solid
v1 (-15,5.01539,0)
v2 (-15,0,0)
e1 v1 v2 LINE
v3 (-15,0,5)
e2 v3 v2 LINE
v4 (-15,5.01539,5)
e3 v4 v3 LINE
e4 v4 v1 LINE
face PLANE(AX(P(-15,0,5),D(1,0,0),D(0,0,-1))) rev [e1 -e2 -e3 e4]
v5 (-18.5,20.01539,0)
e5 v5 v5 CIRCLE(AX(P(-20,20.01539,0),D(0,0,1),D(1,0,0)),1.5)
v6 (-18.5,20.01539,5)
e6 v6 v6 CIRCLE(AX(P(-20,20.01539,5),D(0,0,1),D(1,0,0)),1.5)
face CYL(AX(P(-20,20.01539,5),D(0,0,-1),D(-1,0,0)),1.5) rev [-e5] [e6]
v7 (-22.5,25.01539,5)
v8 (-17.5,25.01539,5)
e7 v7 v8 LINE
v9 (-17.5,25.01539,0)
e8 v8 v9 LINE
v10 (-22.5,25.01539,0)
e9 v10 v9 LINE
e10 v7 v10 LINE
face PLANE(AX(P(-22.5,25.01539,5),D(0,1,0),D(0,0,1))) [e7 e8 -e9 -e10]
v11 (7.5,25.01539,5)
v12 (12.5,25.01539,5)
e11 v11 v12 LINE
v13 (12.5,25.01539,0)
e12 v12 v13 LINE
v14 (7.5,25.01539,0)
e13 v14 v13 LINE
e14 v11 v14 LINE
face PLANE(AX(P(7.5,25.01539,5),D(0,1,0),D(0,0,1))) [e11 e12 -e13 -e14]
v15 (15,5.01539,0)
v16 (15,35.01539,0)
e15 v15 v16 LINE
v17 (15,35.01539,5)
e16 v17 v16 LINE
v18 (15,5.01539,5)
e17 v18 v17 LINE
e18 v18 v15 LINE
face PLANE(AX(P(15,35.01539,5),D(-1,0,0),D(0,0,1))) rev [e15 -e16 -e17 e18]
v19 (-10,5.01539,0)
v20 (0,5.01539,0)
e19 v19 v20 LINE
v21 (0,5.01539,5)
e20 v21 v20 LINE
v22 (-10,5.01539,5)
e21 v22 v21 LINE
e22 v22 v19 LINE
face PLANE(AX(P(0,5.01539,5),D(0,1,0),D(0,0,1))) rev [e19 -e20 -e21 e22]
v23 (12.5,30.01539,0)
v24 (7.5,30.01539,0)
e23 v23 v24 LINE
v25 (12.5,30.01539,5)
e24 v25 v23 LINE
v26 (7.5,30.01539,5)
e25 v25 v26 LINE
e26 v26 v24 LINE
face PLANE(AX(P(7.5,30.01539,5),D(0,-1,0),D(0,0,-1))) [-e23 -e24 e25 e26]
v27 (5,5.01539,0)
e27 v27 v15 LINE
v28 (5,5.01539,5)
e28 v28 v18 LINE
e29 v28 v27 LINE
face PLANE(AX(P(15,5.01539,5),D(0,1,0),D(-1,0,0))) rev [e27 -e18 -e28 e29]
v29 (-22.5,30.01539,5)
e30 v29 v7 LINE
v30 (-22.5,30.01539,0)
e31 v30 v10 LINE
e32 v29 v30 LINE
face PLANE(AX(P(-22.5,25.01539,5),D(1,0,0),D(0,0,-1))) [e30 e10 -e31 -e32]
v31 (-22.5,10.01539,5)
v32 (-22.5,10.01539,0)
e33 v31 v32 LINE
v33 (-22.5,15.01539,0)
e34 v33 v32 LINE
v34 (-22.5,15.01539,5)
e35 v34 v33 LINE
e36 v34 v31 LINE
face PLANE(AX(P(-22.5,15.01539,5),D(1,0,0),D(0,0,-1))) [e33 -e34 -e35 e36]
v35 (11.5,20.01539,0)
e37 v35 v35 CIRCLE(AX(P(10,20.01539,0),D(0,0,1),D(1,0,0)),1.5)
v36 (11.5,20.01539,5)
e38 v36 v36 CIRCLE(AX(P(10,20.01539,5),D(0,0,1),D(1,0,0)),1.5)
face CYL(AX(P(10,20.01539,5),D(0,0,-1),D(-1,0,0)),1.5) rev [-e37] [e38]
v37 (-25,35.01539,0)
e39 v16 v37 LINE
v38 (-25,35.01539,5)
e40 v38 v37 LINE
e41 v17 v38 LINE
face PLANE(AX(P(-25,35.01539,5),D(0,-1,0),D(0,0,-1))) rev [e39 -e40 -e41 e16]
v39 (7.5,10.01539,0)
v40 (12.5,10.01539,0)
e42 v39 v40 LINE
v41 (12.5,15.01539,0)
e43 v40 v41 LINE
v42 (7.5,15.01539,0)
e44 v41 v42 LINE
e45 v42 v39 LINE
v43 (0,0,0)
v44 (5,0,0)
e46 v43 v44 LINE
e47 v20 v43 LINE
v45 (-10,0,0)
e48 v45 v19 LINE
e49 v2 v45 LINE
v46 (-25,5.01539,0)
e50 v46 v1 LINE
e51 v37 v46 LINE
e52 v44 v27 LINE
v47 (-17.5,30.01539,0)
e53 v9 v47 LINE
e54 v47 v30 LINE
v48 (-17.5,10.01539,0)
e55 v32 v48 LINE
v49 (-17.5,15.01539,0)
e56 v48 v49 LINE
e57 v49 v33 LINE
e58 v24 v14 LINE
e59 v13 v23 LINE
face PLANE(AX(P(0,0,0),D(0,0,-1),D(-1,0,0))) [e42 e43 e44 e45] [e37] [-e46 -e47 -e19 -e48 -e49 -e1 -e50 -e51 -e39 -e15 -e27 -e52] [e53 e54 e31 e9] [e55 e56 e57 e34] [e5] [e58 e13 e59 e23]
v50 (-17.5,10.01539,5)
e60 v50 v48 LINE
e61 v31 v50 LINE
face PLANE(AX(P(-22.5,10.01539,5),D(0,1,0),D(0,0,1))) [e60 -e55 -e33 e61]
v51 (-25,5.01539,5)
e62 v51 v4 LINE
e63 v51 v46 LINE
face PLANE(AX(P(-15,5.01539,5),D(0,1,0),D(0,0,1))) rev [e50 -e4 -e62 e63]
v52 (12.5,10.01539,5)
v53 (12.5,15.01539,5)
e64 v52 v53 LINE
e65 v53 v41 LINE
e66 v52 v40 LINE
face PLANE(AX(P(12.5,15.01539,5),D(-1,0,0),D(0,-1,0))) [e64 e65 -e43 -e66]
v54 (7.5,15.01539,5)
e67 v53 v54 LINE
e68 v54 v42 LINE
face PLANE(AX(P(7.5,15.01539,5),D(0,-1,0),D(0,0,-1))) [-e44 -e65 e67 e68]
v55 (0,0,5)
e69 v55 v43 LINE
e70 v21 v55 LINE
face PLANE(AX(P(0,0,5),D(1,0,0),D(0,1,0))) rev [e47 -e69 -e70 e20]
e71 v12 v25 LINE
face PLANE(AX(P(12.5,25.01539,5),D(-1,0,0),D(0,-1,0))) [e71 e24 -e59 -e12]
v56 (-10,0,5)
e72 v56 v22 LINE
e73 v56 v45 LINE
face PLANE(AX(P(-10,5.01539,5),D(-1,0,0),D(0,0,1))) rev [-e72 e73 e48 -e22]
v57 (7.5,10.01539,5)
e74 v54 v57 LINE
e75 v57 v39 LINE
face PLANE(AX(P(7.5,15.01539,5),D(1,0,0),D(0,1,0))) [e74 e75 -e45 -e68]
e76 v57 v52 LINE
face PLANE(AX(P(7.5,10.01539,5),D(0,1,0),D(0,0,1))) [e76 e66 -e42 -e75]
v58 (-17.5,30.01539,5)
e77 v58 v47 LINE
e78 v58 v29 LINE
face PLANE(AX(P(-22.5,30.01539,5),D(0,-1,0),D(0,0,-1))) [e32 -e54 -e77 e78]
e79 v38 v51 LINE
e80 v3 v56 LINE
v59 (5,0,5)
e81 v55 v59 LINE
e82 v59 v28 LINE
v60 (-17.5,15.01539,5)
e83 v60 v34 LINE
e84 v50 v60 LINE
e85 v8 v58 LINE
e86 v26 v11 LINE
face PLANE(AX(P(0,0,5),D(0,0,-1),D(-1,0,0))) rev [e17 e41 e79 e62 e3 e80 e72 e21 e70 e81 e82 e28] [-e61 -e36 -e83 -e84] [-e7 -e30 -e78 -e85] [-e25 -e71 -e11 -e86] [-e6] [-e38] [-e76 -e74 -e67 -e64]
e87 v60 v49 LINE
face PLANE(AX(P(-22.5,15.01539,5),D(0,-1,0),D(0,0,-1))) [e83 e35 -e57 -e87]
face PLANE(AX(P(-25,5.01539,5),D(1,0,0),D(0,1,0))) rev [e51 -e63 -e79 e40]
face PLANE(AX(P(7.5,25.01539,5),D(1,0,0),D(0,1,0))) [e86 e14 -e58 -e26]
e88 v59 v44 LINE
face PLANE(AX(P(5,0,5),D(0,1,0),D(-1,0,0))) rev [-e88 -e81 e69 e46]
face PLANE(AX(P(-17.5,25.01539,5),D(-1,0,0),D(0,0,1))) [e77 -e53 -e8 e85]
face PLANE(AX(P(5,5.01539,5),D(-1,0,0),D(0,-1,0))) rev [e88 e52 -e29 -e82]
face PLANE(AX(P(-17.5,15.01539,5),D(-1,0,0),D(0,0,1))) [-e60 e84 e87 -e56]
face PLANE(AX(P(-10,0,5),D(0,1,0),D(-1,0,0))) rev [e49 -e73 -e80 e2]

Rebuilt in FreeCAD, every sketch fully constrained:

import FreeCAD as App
import Part
import Sketcher

doc = App.newDocument("Part")
params = doc.addObject("Spreadsheet::Sheet", "Params")
for row, (alias, value) in enumerate([
    ("sketch1_diameter", "3 mm"),
    ("sketch1_width", "5 mm"),
    ("sketch1_width2", "10 mm"),
    ("sketch1_height", "30 mm"),
    ("pad1_length", "5 mm"),
], start=1):
    params.set(f"A{row}", alias)
    params.set(f"B{row}", "=" + value)
    params.setAlias(f"B{row}", alias)

body = doc.addObject("PartDesign::Body", "Body")

sketch1 = doc.addObject("Sketcher::SketchObject", "Sketch")
body.addObject(sketch1)
sketch1.AttachmentSupport = (doc.XY_Plane, [""])
sketch1.MapMode = "FlatFace"
sketch1.addGeometry(Part.LineSegment(App.Vector(0, 5.01539, 0), App.Vector(0, 0, 0)), False)
sketch1.addGeometry(Part.LineSegment(App.Vector(0, 0, 0), App.Vector(5, 0, 0)), False)
sketch1.addGeometry(Part.LineSegment(App.Vector(5, 0, 0), App.Vector(5, 5.01539, 0)), False)
sketch1.addGeometry(Part.LineSegment(App.Vector(5, 5.01539, 0), App.Vector(15, 5.01539, 0)), False)
sketch1.addGeometry(Part.LineSegment(App.Vector(15, 5.01539, 0), App.Vector(15, 35.01539, 0)), False)
sketch1.addGeometry(Part.LineSegment(App.Vector(15, 35.01539, 0), App.Vector(-25, 35.01539, 0)), False)
sketch1.addGeometry(Part.LineSegment(App.Vector(-25, 35.01539, 0), App.Vector(-25, 5.01539, 0)), False)
sketch1.addGeometry(Part.LineSegment(App.Vector(-25, 5.01539, 0), App.Vector(-15, 5.01539, 0)), False)
sketch1.addGeometry(Part.LineSegment(App.Vector(-15, 5.01539, 0), App.Vector(-15, 0, 0)), False)
sketch1.addGeometry(Part.LineSegment(App.Vector(-15, 0, 0), App.Vector(-10, 0, 0)), False)
sketch1.addGeometry(Part.LineSegment(App.Vector(-10, 0, 0), App.Vector(-10, 5.01539, 0)), False)
sketch1.addGeometry(Part.LineSegment(App.Vector(-10, 5.01539, 0), App.Vector(0, 5.01539, 0)), False)
sketch1.addGeometry(Part.LineSegment(App.Vector(7.5, 10.01539, 0), App.Vector(7.5, 15.01539, 0)), False)
sketch1.addGeometry(Part.LineSegment(App.Vector(7.5, 15.01539, 0), App.Vector(12.5, 15.01539, 0)), False)
sketch1.addGeometry(Part.LineSegment(App.Vector(12.5, 15.01539, 0), App.Vector(12.5, 10.01539, 0)), False)
sketch1.addGeometry(Part.LineSegment(App.Vector(12.5, 10.01539, 0), App.Vector(7.5, 10.01539, 0)), False)
sketch1.addGeometry(Part.LineSegment(App.Vector(-22.5, 10.01539, 0), App.Vector(-22.5, 15.01539, 0)), False)
sketch1.addGeometry(Part.LineSegment(App.Vector(-22.5, 15.01539, 0), App.Vector(-17.5, 15.01539, 0)), False)
sketch1.addGeometry(Part.LineSegment(App.Vector(-17.5, 15.01539, 0), App.Vector(-17.5, 10.01539, 0)), False)
sketch1.addGeometry(Part.LineSegment(App.Vector(-17.5, 10.01539, 0), App.Vector(-22.5, 10.01539, 0)), False)
sketch1.addGeometry(Part.Circle(App.Vector(10, 20.01539, 0), App.Vector(0, 0, 1), 1.5), False)
sketch1.addGeometry(Part.LineSegment(App.Vector(7.5, 25.01539, 0), App.Vector(7.5, 30.01539, 0)), False)
sketch1.addGeometry(Part.LineSegment(App.Vector(7.5, 30.01539, 0), App.Vector(12.5, 30.01539, 0)), False)
sketch1.addGeometry(Part.LineSegment(App.Vector(12.5, 30.01539, 0), App.Vector(12.5, 25.01539, 0)), False)
sketch1.addGeometry(Part.LineSegment(App.Vector(12.5, 25.01539, 0), App.Vector(7.5, 25.01539, 0)), False)
sketch1.addGeometry(Part.Circle(App.Vector(-20, 20.01539, 0), App.Vector(0, 0, 1), 1.5), False)
sketch1.addGeometry(Part.LineSegment(App.Vector(-22.5, 25.01539, 0), App.Vector(-22.5, 30.01539, 0)), False)
sketch1.addGeometry(Part.LineSegment(App.Vector(-22.5, 30.01539, 0), App.Vector(-17.5, 30.01539, 0)), False)
sketch1.addGeometry(Part.LineSegment(App.Vector(-17.5, 30.01539, 0), App.Vector(-17.5, 25.01539, 0)), False)
sketch1.addGeometry(Part.LineSegment(App.Vector(-17.5, 25.01539, 0), App.Vector(-22.5, 25.01539, 0)), False)
sketch1.addConstraint(Sketcher.Constraint("Coincident", 0, 2, 1, 1))
sketch1.addConstraint(Sketcher.Constraint("Coincident", 1, 2, 2, 1))
sketch1.addConstraint(Sketcher.Constraint("Coincident", 2, 2, 3, 1))
sketch1.addConstraint(Sketcher.Constraint("Coincident", 3, 2, 4, 1))
sketch1.addConstraint(Sketcher.Constraint("Coincident", 4, 2, 5, 1))
sketch1.addConstraint(Sketcher.Constraint("Coincident", 5, 2, 6, 1))
sketch1.addConstraint(Sketcher.Constraint("Coincident", 6, 2, 7, 1))
sketch1.addConstraint(Sketcher.Constraint("Coincident", 7, 2, 8, 1))
sketch1.addConstraint(Sketcher.Constraint("Coincident", 8, 2, 9, 1))
sketch1.addConstraint(Sketcher.Constraint("Coincident", 9, 2, 10, 1))
sketch1.addConstraint(Sketcher.Constraint("Coincident", 10, 2, 11, 1))
sketch1.addConstraint(Sketcher.Constraint("Coincident", 11, 2, 0, 1))
sketch1.addConstraint(Sketcher.Constraint("Coincident", 12, 2, 13, 1))
sketch1.addConstraint(Sketcher.Constraint("Coincident", 13, 2, 14, 1))
sketch1.addConstraint(Sketcher.Constraint("Coincident", 14, 2, 15, 1))
sketch1.addConstraint(Sketcher.Constraint("Coincident", 15, 2, 12, 1))
sketch1.addConstraint(Sketcher.Constraint("Coincident", 16, 2, 17, 1))
sketch1.addConstraint(Sketcher.Constraint("Coincident", 17, 2, 18, 1))
sketch1.addConstraint(Sketcher.Constraint("Coincident", 18, 2, 19, 1))
sketch1.addConstraint(Sketcher.Constraint("Coincident", 19, 2, 16, 1))
sketch1.addConstraint(Sketcher.Constraint("Coincident", 21, 2, 22, 1))
sketch1.addConstraint(Sketcher.Constraint("Coincident", 22, 2, 23, 1))
sketch1.addConstraint(Sketcher.Constraint("Coincident", 23, 2, 24, 1))
sketch1.addConstraint(Sketcher.Constraint("Coincident", 24, 2, 21, 1))
sketch1.addConstraint(Sketcher.Constraint("Coincident", 26, 2, 27, 1))
sketch1.addConstraint(Sketcher.Constraint("Coincident", 27, 2, 28, 1))
sketch1.addConstraint(Sketcher.Constraint("Coincident", 28, 2, 29, 1))
sketch1.addConstraint(Sketcher.Constraint("Coincident", 29, 2, 26, 1))
sketch1.addConstraint(Sketcher.Constraint("Vertical", 0))
sketch1.addConstraint(Sketcher.Constraint("Horizontal", 1))
sketch1.addConstraint(Sketcher.Constraint("Vertical", 2))
sketch1.addConstraint(Sketcher.Constraint("Horizontal", 3))
sketch1.addConstraint(Sketcher.Constraint("Vertical", 4))
sketch1.addConstraint(Sketcher.Constraint("Horizontal", 5))
sketch1.addConstraint(Sketcher.Constraint("Vertical", 6))
sketch1.addConstraint(Sketcher.Constraint("Horizontal", 7))
sketch1.addConstraint(Sketcher.Constraint("Vertical", 8))
sketch1.addConstraint(Sketcher.Constraint("Horizontal", 9))
sketch1.addConstraint(Sketcher.Constraint("Vertical", 10))
sketch1.addConstraint(Sketcher.Constraint("Horizontal", 11))
sketch1.addConstraint(Sketcher.Constraint("Vertical", 12))
sketch1.addConstraint(Sketcher.Constraint("Horizontal", 13))
sketch1.addConstraint(Sketcher.Constraint("Vertical", 14))
sketch1.addConstraint(Sketcher.Constraint("Horizontal", 15))
sketch1.addConstraint(Sketcher.Constraint("Vertical", 16))
sketch1.addConstraint(Sketcher.Constraint("Horizontal", 17))
sketch1.addConstraint(Sketcher.Constraint("Vertical", 18))
sketch1.addConstraint(Sketcher.Constraint("Horizontal", 19))
sketch1.addConstraint(Sketcher.Constraint("Vertical", 21))
sketch1.addConstraint(Sketcher.Constraint("Horizontal", 22))
sketch1.addConstraint(Sketcher.Constraint("Vertical", 23))
sketch1.addConstraint(Sketcher.Constraint("Horizontal", 24))
sketch1.addConstraint(Sketcher.Constraint("Vertical", 26))
sketch1.addConstraint(Sketcher.Constraint("Horizontal", 27))
sketch1.addConstraint(Sketcher.Constraint("Vertical", 28))
sketch1.addConstraint(Sketcher.Constraint("Horizontal", 29))
sketch1.addConstraint(Sketcher.Constraint("Coincident", 0, 2, -1, 1))
sketch1.addConstraint(Sketcher.Constraint("Equal", 20, 25))
sketch1.addConstraint(Sketcher.Constraint("Symmetric", 3, 2, 7, 2, -2))
sketch1.addConstraint(Sketcher.Constraint("PointOnObject", 8, 2, -1))
sketch1.addConstraint(Sketcher.Constraint("Horizontal", 20, 3, 25, 3))
sketch1.addConstraint(Sketcher.Constraint("Horizontal", 7, 2, 10, 2))
sketch1.addConstraint(Sketcher.Constraint("Horizontal", 13, 2, 16, 2))
sketch1.addConstraint(Sketcher.Constraint("Horizontal", 15, 2, 18, 2))
sketch1.addConstraint(Sketcher.Constraint("Horizontal", 22, 2, 26, 2))
sketch1.addConstraint(Sketcher.Constraint("Horizontal", 24, 2, 28, 2))
sketch1.addConstraint(Sketcher.Constraint("Vertical", 15, 2, 21, 2))
sketch1.addConstraint(Sketcher.Constraint("Vertical", 14, 2, 22, 2))
sketch1.addConstraint(Sketcher.Constraint("Vertical", 19, 2, 26, 2))
sketch1.addConstraint(Sketcher.Constraint("Vertical", 18, 2, 27, 2))
sketch1.addConstraint(Sketcher.Constraint("Equal", 3, 7))
sketch1.addConstraint(Sketcher.Constraint("Equal", 1, 9))
sketch1.addConstraint(Sketcher.Constraint("Equal", 9, 13))
sketch1.addConstraint(Sketcher.Constraint("Equal", 15, 17))
sketch1.addConstraint(Sketcher.Constraint("Equal", 29, 12))
sketch1.addConstraint(Sketcher.Constraint("Equal", 18, 21))
sketch1.addConstraint(Sketcher.Constraint("Diameter", 20, 3.0))
sketch1.addConstraint(Sketcher.Constraint("DistanceX", 1, 1, 1, 2, 5.0))
sketch1.addConstraint(Sketcher.Constraint("DistanceX", 3, 1, 3, 2, 10.0))
sketch1.addConstraint(Sketcher.Constraint("DistanceY", 4, 1, 4, 2, 30.0))
sketch1.addConstraint(Sketcher.Constraint("DistanceX", -1, 1, 20, 3, 10.0))
sketch1.addConstraint(Sketcher.Constraint("DistanceX", 25, 3, -1, 1, 20.0))
sketch1.addConstraint(Sketcher.Constraint("DistanceY", 2, 2, 20, 3, 15.0))
sketch1.addConstraint(Sketcher.Constraint("DistanceY", 12, 2, 20, 3, 5.0))
sketch1.addConstraint(Sketcher.Constraint("DistanceY", 21, 2, 4, 2, 5.0))
sketch1.addConstraint(Sketcher.Constraint("DistanceX", -1, 1, 12, 2, 7.5))
sketch1.addConstraint(Sketcher.Constraint("DistanceX", 16, 2, -1, 1, 22.5))
sketch1.addConstraint(Sketcher.Constraint("DistanceY", 0, 2, 0, 1, 5.01539))
sketch1.setExpression("Constraints[76]", "Params.sketch1_diameter")
sketch1.setExpression("Constraints[77]", "Params.sketch1_width")
sketch1.setExpression("Constraints[78]", "Params.sketch1_width2")
sketch1.setExpression("Constraints[79]", "Params.sketch1_height")
pad1 = doc.addObject("PartDesign::Pad", "Pad")
body.addObject(pad1)
pad1.Profile = sketch1
pad1.setExpression("Length", "Params.pad1_length")

doc.recompute()
